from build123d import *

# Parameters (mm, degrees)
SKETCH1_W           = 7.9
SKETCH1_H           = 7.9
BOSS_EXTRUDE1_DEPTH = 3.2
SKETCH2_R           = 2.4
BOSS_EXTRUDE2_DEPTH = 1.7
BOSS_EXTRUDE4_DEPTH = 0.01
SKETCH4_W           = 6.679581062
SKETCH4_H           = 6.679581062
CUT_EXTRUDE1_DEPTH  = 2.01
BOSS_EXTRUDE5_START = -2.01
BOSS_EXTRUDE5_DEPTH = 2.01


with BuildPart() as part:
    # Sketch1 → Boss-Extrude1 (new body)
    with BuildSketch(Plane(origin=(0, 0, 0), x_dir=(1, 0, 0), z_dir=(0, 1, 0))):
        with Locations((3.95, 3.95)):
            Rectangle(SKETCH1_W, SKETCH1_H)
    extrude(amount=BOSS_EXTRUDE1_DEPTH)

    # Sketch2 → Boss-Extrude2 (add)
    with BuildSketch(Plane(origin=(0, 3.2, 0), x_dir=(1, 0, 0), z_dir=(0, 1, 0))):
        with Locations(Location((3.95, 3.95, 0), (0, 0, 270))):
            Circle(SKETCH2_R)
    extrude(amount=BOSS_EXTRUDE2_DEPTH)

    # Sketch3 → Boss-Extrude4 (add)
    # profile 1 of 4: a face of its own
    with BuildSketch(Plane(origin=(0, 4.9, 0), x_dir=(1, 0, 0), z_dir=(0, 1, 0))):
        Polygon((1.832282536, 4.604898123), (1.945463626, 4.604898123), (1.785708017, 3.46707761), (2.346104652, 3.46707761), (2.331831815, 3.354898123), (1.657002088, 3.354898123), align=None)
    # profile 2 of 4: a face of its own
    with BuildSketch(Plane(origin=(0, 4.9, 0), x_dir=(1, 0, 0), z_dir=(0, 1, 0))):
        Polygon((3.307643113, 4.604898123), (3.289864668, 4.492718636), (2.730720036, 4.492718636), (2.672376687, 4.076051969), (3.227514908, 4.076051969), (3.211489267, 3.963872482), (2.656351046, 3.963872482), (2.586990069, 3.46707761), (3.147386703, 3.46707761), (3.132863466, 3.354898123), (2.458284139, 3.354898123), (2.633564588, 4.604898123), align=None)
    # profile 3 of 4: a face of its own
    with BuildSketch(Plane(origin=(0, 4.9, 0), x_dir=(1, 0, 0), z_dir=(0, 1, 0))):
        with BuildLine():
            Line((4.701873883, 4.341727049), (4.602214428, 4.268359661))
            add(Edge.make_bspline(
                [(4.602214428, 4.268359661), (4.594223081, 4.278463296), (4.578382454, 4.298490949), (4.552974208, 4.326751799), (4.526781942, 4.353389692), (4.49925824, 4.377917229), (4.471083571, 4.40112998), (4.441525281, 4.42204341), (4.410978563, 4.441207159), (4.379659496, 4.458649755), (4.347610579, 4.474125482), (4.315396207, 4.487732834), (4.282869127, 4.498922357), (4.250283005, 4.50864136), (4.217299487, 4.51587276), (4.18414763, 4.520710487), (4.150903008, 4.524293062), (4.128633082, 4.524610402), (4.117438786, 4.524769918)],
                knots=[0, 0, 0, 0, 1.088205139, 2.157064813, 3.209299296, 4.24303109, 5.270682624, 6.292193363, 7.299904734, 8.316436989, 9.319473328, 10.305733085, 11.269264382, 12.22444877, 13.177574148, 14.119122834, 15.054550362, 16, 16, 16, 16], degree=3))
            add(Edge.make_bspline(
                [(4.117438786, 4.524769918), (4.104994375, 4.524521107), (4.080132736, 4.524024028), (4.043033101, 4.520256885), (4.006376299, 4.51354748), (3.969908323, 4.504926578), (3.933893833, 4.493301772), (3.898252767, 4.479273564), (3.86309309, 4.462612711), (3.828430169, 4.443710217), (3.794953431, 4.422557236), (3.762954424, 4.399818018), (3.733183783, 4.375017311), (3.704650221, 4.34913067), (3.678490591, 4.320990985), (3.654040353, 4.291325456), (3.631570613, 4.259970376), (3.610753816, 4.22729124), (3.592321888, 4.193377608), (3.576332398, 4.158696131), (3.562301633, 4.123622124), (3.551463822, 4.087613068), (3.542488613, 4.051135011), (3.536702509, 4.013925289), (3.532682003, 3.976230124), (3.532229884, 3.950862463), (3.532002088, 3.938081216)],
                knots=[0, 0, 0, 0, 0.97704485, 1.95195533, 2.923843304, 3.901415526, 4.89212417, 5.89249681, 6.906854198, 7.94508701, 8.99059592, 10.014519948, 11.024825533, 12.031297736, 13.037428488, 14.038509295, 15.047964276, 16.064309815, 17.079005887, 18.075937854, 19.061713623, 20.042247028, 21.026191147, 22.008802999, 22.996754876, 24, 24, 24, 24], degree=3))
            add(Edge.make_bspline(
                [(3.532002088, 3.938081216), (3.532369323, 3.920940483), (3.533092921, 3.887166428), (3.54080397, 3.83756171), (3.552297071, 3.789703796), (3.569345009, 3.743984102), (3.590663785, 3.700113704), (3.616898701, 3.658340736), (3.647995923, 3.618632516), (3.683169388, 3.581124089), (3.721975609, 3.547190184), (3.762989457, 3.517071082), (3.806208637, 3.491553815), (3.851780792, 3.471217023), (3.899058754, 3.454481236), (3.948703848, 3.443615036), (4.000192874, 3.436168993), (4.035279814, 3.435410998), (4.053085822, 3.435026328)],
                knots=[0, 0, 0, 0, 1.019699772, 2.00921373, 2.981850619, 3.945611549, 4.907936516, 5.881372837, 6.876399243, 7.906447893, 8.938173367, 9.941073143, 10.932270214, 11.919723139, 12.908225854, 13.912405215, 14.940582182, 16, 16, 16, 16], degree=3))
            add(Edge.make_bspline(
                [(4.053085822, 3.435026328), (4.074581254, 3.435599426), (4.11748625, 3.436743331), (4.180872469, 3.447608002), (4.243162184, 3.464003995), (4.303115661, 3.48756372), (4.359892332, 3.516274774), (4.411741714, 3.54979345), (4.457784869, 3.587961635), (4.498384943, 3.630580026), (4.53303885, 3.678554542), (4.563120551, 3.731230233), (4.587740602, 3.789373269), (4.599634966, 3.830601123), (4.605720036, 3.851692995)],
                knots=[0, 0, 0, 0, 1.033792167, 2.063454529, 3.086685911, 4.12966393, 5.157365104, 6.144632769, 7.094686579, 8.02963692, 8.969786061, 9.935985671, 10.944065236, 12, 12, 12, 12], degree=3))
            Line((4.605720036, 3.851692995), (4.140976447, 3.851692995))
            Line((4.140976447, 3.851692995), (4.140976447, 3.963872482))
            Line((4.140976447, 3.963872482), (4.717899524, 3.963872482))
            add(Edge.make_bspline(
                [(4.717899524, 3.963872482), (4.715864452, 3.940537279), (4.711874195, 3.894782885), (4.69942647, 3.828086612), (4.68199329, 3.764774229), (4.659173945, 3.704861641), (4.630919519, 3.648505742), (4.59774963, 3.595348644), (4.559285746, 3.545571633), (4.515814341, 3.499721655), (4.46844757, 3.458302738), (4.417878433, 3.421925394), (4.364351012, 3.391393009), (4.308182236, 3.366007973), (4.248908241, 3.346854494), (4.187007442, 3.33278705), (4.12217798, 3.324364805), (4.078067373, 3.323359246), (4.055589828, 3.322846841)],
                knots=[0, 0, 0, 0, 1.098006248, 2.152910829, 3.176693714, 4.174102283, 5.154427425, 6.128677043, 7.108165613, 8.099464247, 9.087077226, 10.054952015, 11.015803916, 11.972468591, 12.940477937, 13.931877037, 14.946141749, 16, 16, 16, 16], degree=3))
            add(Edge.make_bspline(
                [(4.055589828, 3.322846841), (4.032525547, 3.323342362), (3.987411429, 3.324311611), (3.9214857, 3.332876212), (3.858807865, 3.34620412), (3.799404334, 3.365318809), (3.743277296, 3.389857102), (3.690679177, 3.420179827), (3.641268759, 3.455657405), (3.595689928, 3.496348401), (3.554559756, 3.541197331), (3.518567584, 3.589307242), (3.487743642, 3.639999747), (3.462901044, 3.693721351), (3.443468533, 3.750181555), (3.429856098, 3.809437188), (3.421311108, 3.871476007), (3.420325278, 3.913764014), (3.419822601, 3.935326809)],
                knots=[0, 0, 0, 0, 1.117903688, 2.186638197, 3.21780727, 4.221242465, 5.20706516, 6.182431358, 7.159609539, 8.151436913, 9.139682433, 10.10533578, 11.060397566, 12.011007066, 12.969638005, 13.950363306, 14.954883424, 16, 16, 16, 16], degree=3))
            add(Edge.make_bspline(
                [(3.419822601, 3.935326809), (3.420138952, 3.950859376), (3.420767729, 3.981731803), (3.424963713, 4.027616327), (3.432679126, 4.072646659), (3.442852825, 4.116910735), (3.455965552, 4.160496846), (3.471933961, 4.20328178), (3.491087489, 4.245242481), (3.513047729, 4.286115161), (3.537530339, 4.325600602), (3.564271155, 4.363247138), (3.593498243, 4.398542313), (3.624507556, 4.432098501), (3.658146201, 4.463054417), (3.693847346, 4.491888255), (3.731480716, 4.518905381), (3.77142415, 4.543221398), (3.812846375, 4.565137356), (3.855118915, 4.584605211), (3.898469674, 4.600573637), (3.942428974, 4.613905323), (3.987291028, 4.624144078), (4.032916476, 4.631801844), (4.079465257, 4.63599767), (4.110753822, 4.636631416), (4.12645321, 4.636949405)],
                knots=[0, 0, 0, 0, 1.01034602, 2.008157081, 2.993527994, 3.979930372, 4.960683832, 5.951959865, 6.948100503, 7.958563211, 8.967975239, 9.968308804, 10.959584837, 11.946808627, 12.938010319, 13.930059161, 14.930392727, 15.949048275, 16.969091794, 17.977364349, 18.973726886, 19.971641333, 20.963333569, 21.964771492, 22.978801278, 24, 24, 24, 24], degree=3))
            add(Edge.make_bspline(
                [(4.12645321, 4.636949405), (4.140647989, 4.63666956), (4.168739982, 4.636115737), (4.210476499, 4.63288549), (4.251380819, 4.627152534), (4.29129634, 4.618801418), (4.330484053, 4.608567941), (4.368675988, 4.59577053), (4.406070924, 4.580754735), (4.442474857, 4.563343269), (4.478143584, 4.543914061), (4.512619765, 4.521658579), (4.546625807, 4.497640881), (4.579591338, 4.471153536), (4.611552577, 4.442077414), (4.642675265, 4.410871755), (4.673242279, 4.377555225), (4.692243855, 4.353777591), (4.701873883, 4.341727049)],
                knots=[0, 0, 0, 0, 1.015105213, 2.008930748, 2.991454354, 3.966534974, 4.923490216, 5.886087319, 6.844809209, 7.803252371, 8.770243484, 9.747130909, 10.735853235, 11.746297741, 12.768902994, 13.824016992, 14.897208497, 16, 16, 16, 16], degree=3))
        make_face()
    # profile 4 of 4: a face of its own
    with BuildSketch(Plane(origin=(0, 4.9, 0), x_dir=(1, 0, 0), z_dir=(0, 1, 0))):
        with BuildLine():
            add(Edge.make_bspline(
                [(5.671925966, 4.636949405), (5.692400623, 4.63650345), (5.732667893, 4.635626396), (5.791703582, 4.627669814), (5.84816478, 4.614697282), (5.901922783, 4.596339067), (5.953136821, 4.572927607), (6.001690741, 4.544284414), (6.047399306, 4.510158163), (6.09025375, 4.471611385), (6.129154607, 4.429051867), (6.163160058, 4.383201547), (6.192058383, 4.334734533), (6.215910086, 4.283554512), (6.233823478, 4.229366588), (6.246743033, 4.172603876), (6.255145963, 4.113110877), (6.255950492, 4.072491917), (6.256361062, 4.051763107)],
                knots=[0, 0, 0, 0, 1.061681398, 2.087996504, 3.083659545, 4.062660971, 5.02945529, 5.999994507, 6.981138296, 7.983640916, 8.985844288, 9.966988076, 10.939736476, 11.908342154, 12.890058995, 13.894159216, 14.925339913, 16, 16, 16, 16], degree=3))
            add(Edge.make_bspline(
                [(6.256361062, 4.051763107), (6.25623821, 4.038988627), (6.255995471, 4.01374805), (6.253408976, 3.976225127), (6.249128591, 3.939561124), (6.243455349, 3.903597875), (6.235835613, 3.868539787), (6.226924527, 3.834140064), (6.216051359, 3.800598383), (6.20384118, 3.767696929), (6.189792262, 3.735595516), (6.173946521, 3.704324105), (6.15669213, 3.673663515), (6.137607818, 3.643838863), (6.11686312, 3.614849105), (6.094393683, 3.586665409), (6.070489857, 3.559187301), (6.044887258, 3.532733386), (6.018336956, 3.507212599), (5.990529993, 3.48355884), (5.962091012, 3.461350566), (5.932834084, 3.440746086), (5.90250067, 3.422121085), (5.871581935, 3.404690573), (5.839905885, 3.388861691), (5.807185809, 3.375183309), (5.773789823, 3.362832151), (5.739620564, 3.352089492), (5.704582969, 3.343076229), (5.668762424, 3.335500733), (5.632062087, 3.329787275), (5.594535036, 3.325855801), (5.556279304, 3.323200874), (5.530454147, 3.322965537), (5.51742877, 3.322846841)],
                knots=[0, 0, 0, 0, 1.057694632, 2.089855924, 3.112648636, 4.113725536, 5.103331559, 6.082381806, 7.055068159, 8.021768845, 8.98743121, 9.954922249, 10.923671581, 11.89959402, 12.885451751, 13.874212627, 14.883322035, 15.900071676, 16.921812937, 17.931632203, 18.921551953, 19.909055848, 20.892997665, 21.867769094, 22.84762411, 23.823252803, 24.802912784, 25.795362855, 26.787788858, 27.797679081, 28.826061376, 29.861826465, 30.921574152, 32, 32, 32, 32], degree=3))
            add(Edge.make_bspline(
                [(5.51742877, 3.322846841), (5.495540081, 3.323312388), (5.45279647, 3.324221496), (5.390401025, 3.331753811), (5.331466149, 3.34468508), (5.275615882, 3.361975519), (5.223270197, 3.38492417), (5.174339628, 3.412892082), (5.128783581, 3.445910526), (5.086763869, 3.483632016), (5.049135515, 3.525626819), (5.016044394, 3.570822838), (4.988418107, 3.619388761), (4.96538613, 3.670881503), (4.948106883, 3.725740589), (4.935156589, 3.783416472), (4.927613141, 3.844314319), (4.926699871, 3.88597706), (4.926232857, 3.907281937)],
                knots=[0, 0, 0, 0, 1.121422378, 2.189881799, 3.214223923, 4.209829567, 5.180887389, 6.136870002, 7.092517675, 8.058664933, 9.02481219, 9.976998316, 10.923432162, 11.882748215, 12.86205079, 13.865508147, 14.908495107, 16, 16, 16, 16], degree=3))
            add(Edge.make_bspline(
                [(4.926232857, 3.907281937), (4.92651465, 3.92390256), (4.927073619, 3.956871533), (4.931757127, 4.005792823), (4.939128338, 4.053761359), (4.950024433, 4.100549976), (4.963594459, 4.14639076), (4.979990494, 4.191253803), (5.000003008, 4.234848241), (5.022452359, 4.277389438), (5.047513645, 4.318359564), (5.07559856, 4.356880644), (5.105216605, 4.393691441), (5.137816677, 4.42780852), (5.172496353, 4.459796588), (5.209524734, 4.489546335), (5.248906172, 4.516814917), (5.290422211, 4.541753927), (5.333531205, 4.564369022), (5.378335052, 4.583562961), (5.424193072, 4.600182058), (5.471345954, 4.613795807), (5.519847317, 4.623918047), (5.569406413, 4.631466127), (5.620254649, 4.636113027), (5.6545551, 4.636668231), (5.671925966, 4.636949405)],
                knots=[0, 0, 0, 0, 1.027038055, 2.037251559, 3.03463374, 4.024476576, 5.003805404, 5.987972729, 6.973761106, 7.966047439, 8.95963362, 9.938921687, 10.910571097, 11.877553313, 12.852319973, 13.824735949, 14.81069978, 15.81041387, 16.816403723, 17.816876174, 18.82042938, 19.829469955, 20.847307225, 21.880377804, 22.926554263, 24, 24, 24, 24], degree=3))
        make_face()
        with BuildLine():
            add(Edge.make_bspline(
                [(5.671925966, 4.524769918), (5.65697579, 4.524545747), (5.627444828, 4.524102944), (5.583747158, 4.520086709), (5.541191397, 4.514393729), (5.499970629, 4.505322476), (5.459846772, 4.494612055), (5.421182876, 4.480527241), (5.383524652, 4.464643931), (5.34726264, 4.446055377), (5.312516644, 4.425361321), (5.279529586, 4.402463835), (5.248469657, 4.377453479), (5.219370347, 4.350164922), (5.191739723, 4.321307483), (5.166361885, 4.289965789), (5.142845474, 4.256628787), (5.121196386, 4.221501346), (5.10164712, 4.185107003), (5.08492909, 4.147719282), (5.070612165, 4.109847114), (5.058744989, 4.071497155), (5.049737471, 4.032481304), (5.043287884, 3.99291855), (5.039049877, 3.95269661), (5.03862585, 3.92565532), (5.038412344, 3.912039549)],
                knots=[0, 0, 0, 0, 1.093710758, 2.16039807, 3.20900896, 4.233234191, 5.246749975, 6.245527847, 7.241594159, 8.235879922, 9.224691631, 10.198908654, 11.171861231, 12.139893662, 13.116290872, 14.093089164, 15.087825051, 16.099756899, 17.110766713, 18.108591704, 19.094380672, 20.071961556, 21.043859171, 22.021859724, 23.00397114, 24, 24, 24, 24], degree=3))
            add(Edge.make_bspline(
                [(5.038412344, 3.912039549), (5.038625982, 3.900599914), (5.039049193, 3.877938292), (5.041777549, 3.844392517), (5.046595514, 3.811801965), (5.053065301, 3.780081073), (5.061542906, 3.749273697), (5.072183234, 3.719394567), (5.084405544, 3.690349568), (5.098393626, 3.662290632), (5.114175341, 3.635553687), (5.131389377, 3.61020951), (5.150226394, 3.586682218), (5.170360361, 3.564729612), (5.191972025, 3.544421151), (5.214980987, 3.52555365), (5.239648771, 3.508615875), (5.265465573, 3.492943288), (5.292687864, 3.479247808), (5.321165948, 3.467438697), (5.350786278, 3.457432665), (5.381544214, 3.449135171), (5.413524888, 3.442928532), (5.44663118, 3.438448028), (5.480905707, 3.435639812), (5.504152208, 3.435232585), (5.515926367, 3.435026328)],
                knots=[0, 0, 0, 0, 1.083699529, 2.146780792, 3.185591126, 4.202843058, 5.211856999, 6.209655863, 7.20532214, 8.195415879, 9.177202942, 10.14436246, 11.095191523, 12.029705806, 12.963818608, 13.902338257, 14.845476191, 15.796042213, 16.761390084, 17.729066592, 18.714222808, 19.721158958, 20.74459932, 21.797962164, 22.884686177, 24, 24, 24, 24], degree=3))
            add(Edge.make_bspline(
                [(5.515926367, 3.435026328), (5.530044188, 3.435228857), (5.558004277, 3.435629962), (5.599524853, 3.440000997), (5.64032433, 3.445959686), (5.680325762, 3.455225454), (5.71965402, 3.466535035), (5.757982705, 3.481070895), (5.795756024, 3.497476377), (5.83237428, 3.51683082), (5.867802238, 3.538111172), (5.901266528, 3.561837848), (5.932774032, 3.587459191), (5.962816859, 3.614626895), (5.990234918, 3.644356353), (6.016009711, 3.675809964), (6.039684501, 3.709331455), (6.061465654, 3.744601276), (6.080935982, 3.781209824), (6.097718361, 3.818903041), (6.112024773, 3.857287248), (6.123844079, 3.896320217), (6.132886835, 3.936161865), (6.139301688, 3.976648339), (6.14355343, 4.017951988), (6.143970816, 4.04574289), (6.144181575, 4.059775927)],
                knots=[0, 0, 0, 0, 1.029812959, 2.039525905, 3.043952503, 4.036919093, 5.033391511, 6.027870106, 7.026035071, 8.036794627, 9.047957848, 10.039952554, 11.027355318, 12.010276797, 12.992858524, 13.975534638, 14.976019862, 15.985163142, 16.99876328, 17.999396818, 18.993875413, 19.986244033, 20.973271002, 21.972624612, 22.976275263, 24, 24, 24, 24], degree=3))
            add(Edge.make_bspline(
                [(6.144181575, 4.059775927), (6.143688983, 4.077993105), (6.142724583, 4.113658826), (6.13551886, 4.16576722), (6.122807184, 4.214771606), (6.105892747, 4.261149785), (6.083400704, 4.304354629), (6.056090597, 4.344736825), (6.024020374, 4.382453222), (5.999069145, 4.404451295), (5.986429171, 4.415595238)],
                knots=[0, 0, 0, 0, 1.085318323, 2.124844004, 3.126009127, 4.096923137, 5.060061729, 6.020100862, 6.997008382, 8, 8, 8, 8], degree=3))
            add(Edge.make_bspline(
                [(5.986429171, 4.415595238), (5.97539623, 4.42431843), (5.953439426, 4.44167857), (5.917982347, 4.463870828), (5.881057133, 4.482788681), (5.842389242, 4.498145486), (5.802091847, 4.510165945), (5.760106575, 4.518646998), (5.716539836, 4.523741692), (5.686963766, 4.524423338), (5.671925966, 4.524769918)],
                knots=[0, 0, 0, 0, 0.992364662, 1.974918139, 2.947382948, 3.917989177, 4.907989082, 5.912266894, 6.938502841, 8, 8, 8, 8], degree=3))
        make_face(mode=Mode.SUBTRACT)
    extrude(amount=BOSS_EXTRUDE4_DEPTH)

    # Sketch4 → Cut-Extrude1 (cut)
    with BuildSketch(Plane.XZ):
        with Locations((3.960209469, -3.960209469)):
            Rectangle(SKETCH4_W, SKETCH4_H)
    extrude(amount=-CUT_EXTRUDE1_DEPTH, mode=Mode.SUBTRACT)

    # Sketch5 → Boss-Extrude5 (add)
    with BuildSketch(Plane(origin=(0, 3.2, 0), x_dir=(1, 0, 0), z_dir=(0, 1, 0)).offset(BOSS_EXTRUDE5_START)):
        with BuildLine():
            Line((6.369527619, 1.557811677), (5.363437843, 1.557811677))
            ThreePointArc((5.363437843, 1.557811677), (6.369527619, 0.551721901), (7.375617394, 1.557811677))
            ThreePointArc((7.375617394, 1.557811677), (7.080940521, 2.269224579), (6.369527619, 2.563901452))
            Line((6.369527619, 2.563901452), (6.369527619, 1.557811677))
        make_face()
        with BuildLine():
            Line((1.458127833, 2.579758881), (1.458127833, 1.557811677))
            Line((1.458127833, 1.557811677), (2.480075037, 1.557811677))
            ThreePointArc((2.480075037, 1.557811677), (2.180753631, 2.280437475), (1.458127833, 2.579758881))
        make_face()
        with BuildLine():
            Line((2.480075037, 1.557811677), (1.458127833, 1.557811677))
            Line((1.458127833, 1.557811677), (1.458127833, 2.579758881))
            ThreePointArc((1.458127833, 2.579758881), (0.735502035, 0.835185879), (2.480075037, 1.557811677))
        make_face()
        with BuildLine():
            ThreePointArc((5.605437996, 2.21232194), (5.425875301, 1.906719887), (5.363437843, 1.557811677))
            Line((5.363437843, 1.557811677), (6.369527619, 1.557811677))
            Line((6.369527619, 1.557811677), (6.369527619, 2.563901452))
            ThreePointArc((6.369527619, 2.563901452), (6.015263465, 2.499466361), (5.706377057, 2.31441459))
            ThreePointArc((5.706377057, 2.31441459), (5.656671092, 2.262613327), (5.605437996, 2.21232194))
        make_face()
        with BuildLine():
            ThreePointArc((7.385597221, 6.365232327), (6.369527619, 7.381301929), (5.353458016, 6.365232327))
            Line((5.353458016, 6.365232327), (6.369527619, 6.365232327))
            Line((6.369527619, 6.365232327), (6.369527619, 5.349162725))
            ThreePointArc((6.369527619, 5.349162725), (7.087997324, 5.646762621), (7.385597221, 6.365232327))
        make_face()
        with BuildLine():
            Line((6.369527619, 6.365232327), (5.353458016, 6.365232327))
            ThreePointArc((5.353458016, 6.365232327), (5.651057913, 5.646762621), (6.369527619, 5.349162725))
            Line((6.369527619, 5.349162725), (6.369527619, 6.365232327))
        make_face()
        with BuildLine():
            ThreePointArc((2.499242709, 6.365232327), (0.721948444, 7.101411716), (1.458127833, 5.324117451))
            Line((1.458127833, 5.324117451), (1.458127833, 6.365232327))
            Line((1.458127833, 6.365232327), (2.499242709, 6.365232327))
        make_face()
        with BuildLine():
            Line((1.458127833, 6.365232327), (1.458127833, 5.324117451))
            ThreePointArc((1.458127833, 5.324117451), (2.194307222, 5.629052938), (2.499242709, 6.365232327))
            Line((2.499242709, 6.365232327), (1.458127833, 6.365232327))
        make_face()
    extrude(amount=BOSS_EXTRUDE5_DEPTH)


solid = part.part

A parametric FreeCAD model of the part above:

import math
import FreeCAD as App
import Part
import Sketcher
from FreeCAD import Vector
Q = App.Units.Quantity

doc = App.newDocument("Part")
params = doc.addObject("Spreadsheet::Sheet", "Params")
for row, (alias, value) in enumerate([
    ("sketch1_width", "7.9 mm"),
    ("pad1_length", "3.2 mm"),
    ("sketch2_diameter", "4.8 mm"),
    ("pad2_length", "1.7 mm"),
    ("pad3_length", "0.01 mm"),
    ("pocket1_length", "2.01 mm"),
    ("sketch5_radius", "2.399999 mm"),
    ("pad4_length", "2.01 mm"),
], start=1):
    params.set(f"A{row}", alias)
    params.set(f"B{row}", "=" + value)
    params.setAlias(f"B{row}", alias)

body = doc.addObject("PartDesign::Body", "Body")

# Sketch on XZ plane
sketch1 = body.newObject("Sketcher::SketchObject", "Sketch")
sketch1.AttachmentSupport = (doc.getObject("XZ_Plane"), [""])
sketch1.MapMode = "FlatFace"
sketch1.addGeometry([
    Part.LineSegment(Vector(0, -7.9, 0), Vector(0, 0, 0)),
    Part.LineSegment(Vector(0, 0, 0), Vector(7.9, 0, 0)),
    Part.LineSegment(Vector(7.9, 0, 0), Vector(7.9, -7.9, 0)),
    Part.LineSegment(Vector(7.9, -7.9, 0), Vector(0, -7.9, 0)),
], False)
sketch1.addConstraint([
    Sketcher.Constraint("Coincident", 0, 2, 1, 1),
    Sketcher.Constraint("Coincident", 1, 2, 2, 1),
    Sketcher.Constraint("Coincident", 2, 2, 3, 1),
    Sketcher.Constraint("Coincident", 3, 2, 0, 1),
    Sketcher.Constraint("Vertical", 0),
    Sketcher.Constraint("Horizontal", 1),
    Sketcher.Constraint("Vertical", 2),
    Sketcher.Constraint("Horizontal", 3),
    Sketcher.Constraint("Coincident", 0, 2, -1, 1),
    Sketcher.Constraint("Equal", 3, 0),
    Sketcher.Constraint("DistanceX", 1, 1, 1, 2, Q("7.9 mm")),
])
sketch1.setExpression("Constraints[10]", "Params.sketch1_width")
pad1 = body.newObject("PartDesign::Pad", "Pad")
pad1.Profile = sketch1
pad1.setExpression("Length", "Params.pad1_length")
pad1.Reversed = True

# Sketch on XZ plane
sketch2 = body.newObject("Sketcher::SketchObject", "Sketch001")
sketch2.AttachmentSupport = (doc.getObject("XZ_Plane"), [""])
sketch2.MapMode = "FlatFace"
sketch2.AttachmentOffset = App.Placement(Vector(0, 0, -3.2), App.Rotation())
sketch2.addGeometry(Part.Circle(Vector(3.95, -3.95, 0), Vector(0, 0, 1), 2.4), False)
sketch2.addConstraint([
    Sketcher.Constraint("Diameter", 0, Q("4.8 mm")),
    Sketcher.Constraint("DistanceX", -1, 1, 0, 3, Q("3.95 mm")),
    Sketcher.Constraint("DistanceY", 0, 3, -1, 1, Q("3.95 mm")),
])
sketch2.setExpression("Constraints[0]", "Params.sketch2_diameter")
pad2 = body.newObject("PartDesign::Pad", "Pad001")
pad2.Profile = sketch2
pad2.setExpression("Length", "Params.pad2_length")
pad2.Reversed = True

# Sketch on XZ plane
sketch3 = body.newObject("Sketcher::SketchObject", "Sketch002")
sketch3.AttachmentSupport = (doc.getObject("XZ_Plane"), [""])
sketch3.MapMode = "FlatFace"
sketch3.AttachmentOffset = App.Placement(Vector(0, 0, -4.9), App.Rotation())
sketch3.addGeometry([
    Part.LineSegment(Vector(1.945464, -4.604898, 0), Vector(1.832283, -4.604898, 0)),  # 0
    Part.LineSegment(Vector(1.832283, -4.604898, 0), Vector(1.657002, -3.354898, 0)),  # 1
    Part.LineSegment(Vector(1.657002, -3.354898, 0), Vector(2.331832, -3.354898, 0)),  # 2
    Part.LineSegment(Vector(2.331832, -3.354898, 0), Vector(2.346105, -3.467078, 0)),  # 3
    Part.LineSegment(Vector(2.346105, -3.467078, 0), Vector(1.785708, -3.467078, 0)),  # 4
    Part.LineSegment(Vector(1.785708, -3.467078, 0), Vector(1.945464, -4.604898, 0)),  # 5
    Part.LineSegment(Vector(3.289865, -4.492719, 0), Vector(3.307643, -4.604898, 0)),  # 6
    Part.LineSegment(Vector(3.307643, -4.604898, 0), Vector(2.633565, -4.604898, 0)),  # 7
    Part.LineSegment(Vector(2.633565, -4.604898, 0), Vector(2.458284, -3.354898, 0)),  # 8
    Part.LineSegment(Vector(2.458284, -3.354898, 0), Vector(3.132863, -3.354898, 0)),  # 9
    Part.LineSegment(Vector(3.132863, -3.354898, 0), Vector(3.147387, -3.467078, 0)),  # 10
    Part.LineSegment(Vector(3.147387, -3.467078, 0), Vector(2.58699, -3.467078, 0)),  # 11
    Part.LineSegment(Vector(2.58699, -3.467078, 0), Vector(2.656351, -3.963872, 0)),  # 12
    Part.LineSegment(Vector(2.656351, -3.963872, 0), Vector(3.211489, -3.963872, 0)),  # 13
    Part.LineSegment(Vector(3.211489, -3.963872, 0), Vector(3.227515, -4.076052, 0)),  # 14
    Part.LineSegment(Vector(3.227515, -4.076052, 0), Vector(2.672377, -4.076052, 0)),  # 15
    Part.LineSegment(Vector(2.672377, -4.076052, 0), Vector(2.73072, -4.492719, 0)),  # 16
    Part.LineSegment(Vector(2.73072, -4.492719, 0), Vector(3.289865, -4.492719, 0)),  # 17
    Part.LineSegment(Vector(4.602214, -4.26836, 0), Vector(4.701874, -4.341727, 0)),  # 18
    Part.BSplineCurve([Vector(4.126453, -4.636949, 0), Vector(4.140648, -4.63667, 0), Vector(4.16874, -4.636116, 0), Vector(4.210476, -4.632885, 0), Vector(4.251381, -4.627153, 0), Vector(4.291296, -4.618801, 0), Vector(4.330484, -4.608568, 0), Vector(4.368676, -4.595771, 0), Vector(4.406071, -4.580755, 0), Vector(4.442475, -4.563343, 0), Vector(4.478144, -4.543914, 0), Vector(4.51262, -4.521659, 0), Vector(4.546626, -4.497641, 0), Vector(4.579591, -4.471154, 0), Vector(4.611553, -4.442077, 0), Vector(4.642675, -4.410872, 0), Vector(4.673242, -4.377555, 0), Vector(4.692244, -4.353778, 0), Vector(4.701874, -4.341727, 0)], [4, 1, 1, 1, 1, 1, 1, 1, 1, 1, 1, 1, 1, 1, 1, 1, 4], [0, 1.015105213, 2.008930748, 2.991454354, 3.966534974, 4.923490216, 5.886087319, 6.844809209, 7.803252371, 8.770243484, 9.747130909, 10.735853235, 11.746297741, 12.768902994, 13.824016992, 14.897208497, 16], False, 3, [1, 1, 1, 1, 1, 1, 1, 1, 1, 1, 1, 1, 1, 1, 1, 1, 1, 1, 1], False),  # 19
    Part.BSplineCurve([Vector(3.419823, -3.935327, 0), Vector(3.420139, -3.950859, 0), Vector(3.420768, -3.981732, 0), Vector(3.424964, -4.027616, 0), Vector(3.432679, -4.072647, 0), Vector(3.442853, -4.116911, 0), Vector(3.455966, -4.160497, 0), Vector(3.471934, -4.203282, 0), Vector(3.491087, -4.245242, 0), Vector(3.513048, -4.286115, 0), Vector(3.53753, -4.325601, 0), Vector(3.564271, -4.363247, 0), Vector(3.593498, -4.398542, 0), Vector(3.624508, -4.432099, 0), Vector(3.658146, -4.463054, 0), Vector(3.693847, -4.491888, 0), Vector(3.731481, -4.518905, 0), Vector(3.771424, -4.543221, 0), Vector(3.812846, -4.565137, 0), Vector(3.855119, -4.584605, 0), Vector(3.89847, -4.600574, 0), Vector(3.942429, -4.613905, 0), Vector(3.987291, -4.624144, 0), Vector(4.032916, -4.631802, 0), Vector(4.079465, -4.635998, 0), Vector(4.110754, -4.636631, 0), Vector(4.126453, -4.636949, 0)], [4, 1, 1, 1, 1, 1, 1, 1, 1, 1, 1, 1, 1, 1, 1, 1, 1, 1, 1, 1, 1, 1, 1, 1, 4], [0, 1.01034602, 2.008157081, 2.993527994, 3.979930372, 4.960683832, 5.951959865, 6.948100503, 7.958563211, 8.967975239, 9.968308804, 10.959584837, 11.946808627, 12.938010319, 13.930059161, 14.930392727, 15.949048275, 16.969091794, 17.977364349, 18.973726886, 19.971641333, 20.963333569, 21.964771492, 22.978801278, 24], False, 3, [1, 1, 1, 1, 1, 1, 1, 1, 1, 1, 1, 1, 1, 1, 1, 1, 1, 1, 1, 1, 1, 1, 1, 1, 1, 1, 1], False),  # 20
    Part.BSplineCurve([Vector(4.05559, -3.322847, 0), Vector(4.032526, -3.323342, 0), Vector(3.987411, -3.324312, 0), Vector(3.921486, -3.332876, 0), Vector(3.858808, -3.346204, 0), Vector(3.799404, -3.365319, 0), Vector(3.743277, -3.389857, 0), Vector(3.690679, -3.42018, 0), Vector(3.641269, -3.455657, 0), Vector(3.59569, -3.496348, 0), Vector(3.55456, -3.541197, 0), Vector(3.518568, -3.589307, 0), Vector(3.487744, -3.64, 0), Vector(3.462901, -3.693721, 0), Vector(3.443469, -3.750182, 0), Vector(3.429856, -3.809437, 0), Vector(3.421311, -3.871476, 0), Vector(3.420325, -3.913764, 0), Vector(3.419823, -3.935327, 0)], [4, 1, 1, 1, 1, 1, 1, 1, 1, 1, 1, 1, 1, 1, 1, 1, 4], [0, 1.117903688, 2.186638197, 3.21780727, 4.221242465, 5.20706516, 6.182431358, 7.159609539, 8.151436913, 9.139682433, 10.10533578, 11.060397566, 12.011007066, 12.969638005, 13.950363306, 14.954883424, 16], False, 3, [1, 1, 1, 1, 1, 1, 1, 1, 1, 1, 1, 1, 1, 1, 1, 1, 1, 1, 1], False),  # 21
    Part.BSplineCurve([Vector(4.7179, -3.963872, 0), Vector(4.715864, -3.940537, 0), Vector(4.711874, -3.894783, 0), Vector(4.699426, -3.828087, 0), Vector(4.681993, -3.764774, 0), Vector(4.659174, -3.704862, 0), Vector(4.63092, -3.648506, 0), Vector(4.59775, -3.595349, 0), Vector(4.559286, -3.545572, 0), Vector(4.515814, -3.499722, 0), Vector(4.468448, -3.458303, 0), Vector(4.417878, -3.421925, 0), Vector(4.364351, -3.391393, 0), Vector(4.308182, -3.366008, 0), Vector(4.248908, -3.346854, 0), Vector(4.187007, -3.332787, 0), Vector(4.122178, -3.324365, 0), Vector(4.078067, -3.323359, 0), Vector(4.05559, -3.322847, 0)], [4, 1, 1, 1, 1, 1, 1, 1, 1, 1, 1, 1, 1, 1, 1, 1, 4], [0, 1.098006248, 2.152910829, 3.176693714, 4.174102283, 5.154427425, 6.128677043, 7.108165613, 8.099464247, 9.087077226, 10.054952015, 11.015803916, 11.972468591, 12.940477937, 13.931877037, 14.946141749, 16], False, 3, [1, 1, 1, 1, 1, 1, 1, 1, 1, 1, 1, 1, 1, 1, 1, 1, 1, 1, 1], False),  # 22
    Part.LineSegment(Vector(4.7179, -3.963872, 0), Vector(4.140976, -3.963872, 0)),  # 23
    Part.LineSegment(Vector(4.140976, -3.963872, 0), Vector(4.140976, -3.851693, 0)),  # 24
    Part.LineSegment(Vector(4.140976, -3.851693, 0), Vector(4.60572, -3.851693, 0)),  # 25
    Part.BSplineCurve([Vector(4.053086, -3.435026, 0), Vector(4.074581, -3.435599, 0), Vector(4.117486, -3.436743, 0), Vector(4.180872, -3.447608, 0), Vector(4.243162, -3.464004, 0), Vector(4.303116, -3.487564, 0), Vector(4.359892, -3.516275, 0), Vector(4.411742, -3.549793, 0), Vector(4.457785, -3.587962, 0), Vector(4.498385, -3.63058, 0), Vector(4.533039, -3.678555, 0), Vector(4.563121, -3.73123, 0), Vector(4.587741, -3.789373, 0), Vector(4.599635, -3.830601, 0), Vector(4.60572, -3.851693, 0)], [4, 1, 1, 1, 1, 1, 1, 1, 1, 1, 1, 1, 4], [0, 1.033792167, 2.063454529, 3.086685911, 4.12966393, 5.157365104, 6.144632769, 7.094686579, 8.02963692, 8.969786061, 9.935985671, 10.944065236, 12], False, 3, [1, 1, 1, 1, 1, 1, 1, 1, 1, 1, 1, 1, 1, 1, 1], False),  # 26
    Part.BSplineCurve([Vector(3.532002, -3.938081, 0), Vector(3.532369, -3.92094, 0), Vector(3.533093, -3.887166, 0), Vector(3.540804, -3.837562, 0), Vector(3.552297, -3.789704, 0), Vector(3.569345, -3.743984, 0), Vector(3.590664, -3.700114, 0), Vector(3.616899, -3.658341, 0), Vector(3.647996, -3.618633, 0), Vector(3.683169, -3.581124, 0), Vector(3.721976, -3.54719, 0), Vector(3.762989, -3.517071, 0), Vector(3.806209, -3.491554, 0), Vector(3.851781, -3.471217, 0), Vector(3.899059, -3.454481, 0), Vector(3.948704, -3.443615, 0), Vector(4.000193, -3.436169, 0), Vector(4.03528, -3.435411, 0), Vector(4.053086, -3.435026, 0)], [4, 1, 1, 1, 1, 1, 1, 1, 1, 1, 1, 1, 1, 1, 1, 1, 4], [0, 1.019699772, 2.00921373, 2.981850619, 3.945611549, 4.907936516, 5.881372837, 6.876399243, 7.906447893, 8.938173367, 9.941073143, 10.932270214, 11.919723139, 12.908225854, 13.912405215, 14.940582182, 16], False, 3, [1, 1, 1, 1, 1, 1, 1, 1, 1, 1, 1, 1, 1, 1, 1, 1, 1, 1, 1], False),  # 27
    Part.BSplineCurve([Vector(4.117439, -4.52477, 0), Vector(4.104994, -4.524521, 0), Vector(4.080133, -4.524024, 0), Vector(4.043033, -4.520257, 0), Vector(4.006376, -4.513547, 0), Vector(3.969908, -4.504927, 0), Vector(3.933894, -4.493302, 0), Vector(3.898253, -4.479274, 0), Vector(3.863093, -4.462613, 0), Vector(3.82843, -4.44371, 0), Vector(3.794953, -4.422557, 0), Vector(3.762954, -4.399818, 0), Vector(3.733184, -4.375017, 0), Vector(3.70465, -4.349131, 0), Vector(3.678491, -4.320991, 0), Vector(3.65404, -4.291325, 0), Vector(3.631571, -4.25997, 0), Vector(3.610754, -4.227291, 0), Vector(3.592322, -4.193378, 0), Vector(3.576332, -4.158696, 0), Vector(3.562302, -4.123622, 0), Vector(3.551464, -4.087613, 0), Vector(3.542489, -4.051135, 0), Vector(3.536703, -4.013925, 0), Vector(3.532682, -3.97623, 0), Vector(3.53223, -3.950862, 0), Vector(3.532002, -3.938081, 0)], [4, 1, 1, 1, 1, 1, 1, 1, 1, 1, 1, 1, 1, 1, 1, 1, 1, 1, 1, 1, 1, 1, 1, 1, 4], [0, 0.97704485, 1.95195533, 2.923843304, 3.901415526, 4.89212417, 5.89249681, 6.906854198, 7.94508701, 8.99059592, 10.014519948, 11.024825533, 12.031297736, 13.037428488, 14.038509295, 15.047964276, 16.064309815, 17.079005887, 18.075937854, 19.061713623, 20.042247028, 21.026191147, 22.008802999, 22.996754876, 24], False, 3, [1, 1, 1, 1, 1, 1, 1, 1, 1, 1, 1, 1, 1, 1, 1, 1, 1, 1, 1, 1, 1, 1, 1, 1, 1, 1, 1], False),  # 28
    Part.BSplineCurve([Vector(4.602214, -4.26836, 0), Vector(4.594223, -4.278463, 0), Vector(4.578382, -4.298491, 0), Vector(4.552974, -4.326752, 0), Vector(4.526782, -4.35339, 0), Vector(4.499258, -4.377917, 0), Vector(4.471084, -4.40113, 0), Vector(4.441525, -4.422043, 0), Vector(4.410979, -4.441207, 0), Vector(4.379659, -4.45865, 0), Vector(4.347611, -4.474125, 0), Vector(4.315396, -4.487733, 0), Vector(4.282869, -4.498922, 0), Vector(4.250283, -4.508641, 0), Vector(4.217299, -4.515873, 0), Vector(4.184148, -4.52071, 0), Vector(4.150903, -4.524293, 0), Vector(4.128633, -4.52461, 0), Vector(4.117439, -4.52477, 0)], [4, 1, 1, 1, 1, 1, 1, 1, 1, 1, 1, 1, 1, 1, 1, 1, 4], [0, 1.088205139, 2.157064813, 3.209299296, 4.24303109, 5.270682624, 6.292193363, 7.299904734, 8.316436989, 9.319473328, 10.305733085, 11.269264382, 12.22444877, 13.177574148, 14.119122834, 15.054550362, 16], False, 3, [1, 1, 1, 1, 1, 1, 1, 1, 1, 1, 1, 1, 1, 1, 1, 1, 1, 1, 1], False),  # 29
    Part.BSplineCurve([Vector(5.671926, -4.636949, 0), Vector(5.692401, -4.636503, 0), Vector(5.732668, -4.635626, 0), Vector(5.791704, -4.62767, 0), Vector(5.848165, -4.614697, 0), Vector(5.901923, -4.596339, 0), Vector(5.953137, -4.572928, 0), Vector(6.001691, -4.544284, 0), Vector(6.047399, -4.510158, 0), Vector(6.090254, -4.471611, 0), Vector(6.129155, -4.429052, 0), Vector(6.16316, -4.383202, 0), Vector(6.192058, -4.334735, 0), Vector(6.21591, -4.283555, 0), Vector(6.233823, -4.229367, 0), Vector(6.246743, -4.172604, 0), Vector(6.255146, -4.113111, 0), Vector(6.25595, -4.072492, 0), Vector(6.256361, -4.051763, 0)], [4, 1, 1, 1, 1, 1, 1, 1, 1, 1, 1, 1, 1, 1, 1, 1, 4], [0, 1.061681398, 2.087996504, 3.083659545, 4.062660971, 5.02945529, 5.999994507, 6.981138296, 7.983640916, 8.985844288, 9.966988076, 10.939736476, 11.908342154, 12.890058995, 13.894159216, 14.925339913, 16], False, 3, [1, 1, 1, 1, 1, 1, 1, 1, 1, 1, 1, 1, 1, 1, 1, 1, 1, 1, 1], False),  # 30
    Part.BSplineCurve([Vector(4.926233, -3.907282, 0), Vector(4.926515, -3.923903, 0), Vector(4.927074, -3.956872, 0), Vector(4.931757, -4.005793, 0), Vector(4.939128, -4.053761, 0), Vector(4.950024, -4.10055, 0), Vector(4.963594, -4.146391, 0), Vector(4.97999, -4.191254, 0), Vector(5.000003, -4.234848, 0), Vector(5.022452, -4.277389, 0), Vector(5.047514, -4.31836, 0), Vector(5.075599, -4.356881, 0), Vector(5.105217, -4.393691, 0), Vector(5.137817, -4.427809, 0), Vector(5.172496, -4.459797, 0), Vector(5.209525, -4.489546, 0), Vector(5.248906, -4.516815, 0), Vector(5.290422, -4.541754, 0), Vector(5.333531, -4.564369, 0), Vector(5.378335, -4.583563, 0), Vector(5.424193, -4.600182, 0), Vector(5.471346, -4.613796, 0), Vector(5.519847, -4.623918, 0), Vector(5.569406, -4.631466, 0), Vector(5.620255, -4.636113, 0), Vector(5.654555, -4.636668, 0), Vector(5.671926, -4.636949, 0)], [4, 1, 1, 1, 1, 1, 1, 1, 1, 1, 1, 1, 1, 1, 1, 1, 1, 1, 1, 1, 1, 1, 1, 1, 4], [0, 1.027038055, 2.037251559, 3.03463374, 4.024476576, 5.003805404, 5.987972729, 6.973761106, 7.966047439, 8.95963362, 9.938921687, 10.910571097, 11.877553313, 12.852319973, 13.824735949, 14.81069978, 15.81041387, 16.816403723, 17.816876174, 18.82042938, 19.829469955, 20.847307225, 21.880377804, 22.926554263, 24], False, 3, [1, 1, 1, 1, 1, 1, 1, 1, 1, 1, 1, 1, 1, 1, 1, 1, 1, 1, 1, 1, 1, 1, 1, 1, 1, 1, 1], False),  # 31
    Part.BSplineCurve([Vector(5.517429, -3.322847, 0), Vector(5.49554, -3.323312, 0), Vector(5.452796, -3.324221, 0), Vector(5.390401, -3.331754, 0), Vector(5.331466, -3.344685, 0), Vector(5.275616, -3.361976, 0), Vector(5.22327, -3.384924, 0), Vector(5.17434, -3.412892, 0), Vector(5.128784, -3.445911, 0), Vector(5.086764, -3.483632, 0), Vector(5.049136, -3.525627, 0), Vector(5.016044, -3.570823, 0), Vector(4.988418, -3.619389, 0), Vector(4.965386, -3.670882, 0), Vector(4.948107, -3.725741, 0), Vector(4.935157, -3.783416, 0), Vector(4.927613, -3.844314, 0), Vector(4.9267, -3.885977, 0), Vector(4.926233, -3.907282, 0)], [4, 1, 1, 1, 1, 1, 1, 1, 1, 1, 1, 1, 1, 1, 1, 1, 4], [0, 1.121422378, 2.189881799, 3.214223923, 4.209829567, 5.180887389, 6.136870002, 7.092517675, 8.058664933, 9.02481219, 9.976998316, 10.923432162, 11.882748215, 12.86205079, 13.865508147, 14.908495107, 16], False, 3, [1, 1, 1, 1, 1, 1, 1, 1, 1, 1, 1, 1, 1, 1, 1, 1, 1, 1, 1], False),  # 32
    Part.BSplineCurve([Vector(6.256361, -4.051763, 0), Vector(6.256238, -4.038989, 0), Vector(6.255995, -4.013748, 0), Vector(6.253409, -3.976225, 0), Vector(6.249129, -3.939561, 0), Vector(6.243455, -3.903598, 0), Vector(6.235836, -3.86854, 0), Vector(6.226925, -3.83414, 0), Vector(6.216051, -3.800598, 0), Vector(6.203841, -3.767697, 0), Vector(6.189792, -3.735596, 0), Vector(6.173947, -3.704324, 0), Vector(6.156692, -3.673664, 0), Vector(6.137608, -3.643839, 0), Vector(6.116863, -3.614849, 0), Vector(6.094394, -3.586665, 0), Vector(6.07049, -3.559187, 0), Vector(6.044887, -3.532733, 0), Vector(6.018337, -3.507213, 0), Vector(5.99053, -3.483559, 0), Vector(5.962091, -3.461351, 0), Vector(5.932834, -3.440746, 0), Vector(5.902501, -3.422121, 0), Vector(5.871582, -3.404691, 0), Vector(5.839906, -3.388862, 0), Vector(5.807186, -3.375183, 0), Vector(5.77379, -3.362832, 0), Vector(5.739621, -3.352089, 0), Vector(5.704583, -3.343076, 0), Vector(5.668762, -3.335501, 0), Vector(5.632062, -3.329787, 0), Vector(5.594535, -3.325856, 0), Vector(5.556279, -3.323201, 0), Vector(5.530454, -3.322966, 0), Vector(5.517429, -3.322847, 0)], [4, 1, 1, 1, 1, 1, 1, 1, 1, 1, 1, 1, 1, 1, 1, 1, 1, 1, 1, 1, 1, 1, 1, 1, 1, 1, 1, 1, 1, 1, 1, 1, 4], [0, 1.057694632, 2.089855924, 3.112648636, 4.113725536, 5.103331559, 6.082381806, 7.055068159, 8.021768845, 8.98743121, 9.954922249, 10.923671581, 11.89959402, 12.885451751, 13.874212627, 14.883322035, 15.900071676, 16.921812937, 17.931632203, 18.921551953, 19.909055848, 20.892997665, 21.867769094, 22.84762411, 23.823252803, 24.802912784, 25.795362855, 26.787788858, 27.797679081, 28.826061376, 29.861826465, 30.921574152, 32], False, 3, [1, 1, 1, 1, 1, 1, 1, 1, 1, 1, 1, 1, 1, 1, 1, 1, 1, 1, 1, 1, 1, 1, 1, 1, 1, 1, 1, 1, 1, 1, 1, 1, 1, 1, 1], False),  # 33
    Part.BSplineCurve([Vector(5.986429, -4.415595, 0), Vector(5.975396, -4.424318, 0), Vector(5.953439, -4.441679, 0), Vector(5.917982, -4.463871, 0), Vector(5.881057, -4.482789, 0), Vector(5.842389, -4.498145, 0), Vector(5.802092, -4.510166, 0), Vector(5.760107, -4.518647, 0), Vector(5.71654, -4.523742, 0), Vector(5.686964, -4.524423, 0), Vector(5.671926, -4.52477, 0)], [4, 1, 1, 1, 1, 1, 1, 1, 4], [0, 0.992364662, 1.974918139, 2.947382948, 3.917989177, 4.907989082, 5.912266894, 6.938502841, 8], False, 3, [1, 1, 1, 1, 1, 1, 1, 1, 1, 1, 1], False),  # 34
    Part.BSplineCurve([Vector(6.144182, -4.059776, 0), Vector(6.143689, -4.077993, 0), Vector(6.142725, -4.113659, 0), Vector(6.135519, -4.165767, 0), Vector(6.122807, -4.214772, 0), Vector(6.105893, -4.26115, 0), Vector(6.083401, -4.304355, 0), Vector(6.056091, -4.344737, 0), Vector(6.02402, -4.382453, 0), Vector(5.999069, -4.404451, 0), Vector(5.986429, -4.415595, 0)], [4, 1, 1, 1, 1, 1, 1, 1, 4], [0, 1.085318323, 2.124844004, 3.126009127, 4.096923137, 5.060061729, 6.020100862, 6.997008382, 8], False, 3, [1, 1, 1, 1, 1, 1, 1, 1, 1, 1, 1], False),  # 35
    Part.BSplineCurve([Vector(5.515926, -3.435026, 0), Vector(5.530044, -3.435229, 0), Vector(5.558004, -3.43563, 0), Vector(5.599525, -3.440001, 0), Vector(5.640324, -3.44596, 0), Vector(5.680326, -3.455225, 0), Vector(5.719654, -3.466535, 0), Vector(5.757983, -3.481071, 0), Vector(5.795756, -3.497476, 0), Vector(5.832374, -3.516831, 0), Vector(5.867802, -3.538111, 0), Vector(5.901267, -3.561838, 0), Vector(5.932774, -3.587459, 0), Vector(5.962817, -3.614627, 0), Vector(5.990235, -3.644356, 0), Vector(6.01601, -3.67581, 0), Vector(6.039685, -3.709331, 0), Vector(6.061466, -3.744601, 0), Vector(6.080936, -3.78121, 0), Vector(6.097718, -3.818903, 0), Vector(6.112025, -3.857287, 0), Vector(6.123844, -3.89632, 0), Vector(6.132887, -3.936162, 0), Vector(6.139302, -3.976648, 0), Vector(6.143553, -4.017952, 0), Vector(6.143971, -4.045743, 0), Vector(6.144182, -4.059776, 0)], [4, 1, 1, 1, 1, 1, 1, 1, 1, 1, 1, 1, 1, 1, 1, 1, 1, 1, 1, 1, 1, 1, 1, 1, 4], [0, 1.029812959, 2.039525905, 3.043952503, 4.036919093, 5.033391511, 6.027870106, 7.026035071, 8.036794627, 9.047957848, 10.039952554, 11.027355318, 12.010276797, 12.992858524, 13.975534638, 14.976019862, 15.985163142, 16.99876328, 17.999396818, 18.993875413, 19.986244033, 20.973271002, 21.972624612, 22.976275263, 24], False, 3, [1, 1, 1, 1, 1, 1, 1, 1, 1, 1, 1, 1, 1, 1, 1, 1, 1, 1, 1, 1, 1, 1, 1, 1, 1, 1, 1], False),  # 36
    Part.BSplineCurve([Vector(5.038412, -3.91204, 0), Vector(5.038626, -3.9006, 0), Vector(5.039049, -3.877938, 0), Vector(5.041778, -3.844393, 0), Vector(5.046596, -3.811802, 0), Vector(5.053065, -3.780081, 0), Vector(5.061543, -3.749274, 0), Vector(5.072183, -3.719395, 0), Vector(5.084406, -3.69035, 0), Vector(5.098394, -3.662291, 0), Vector(5.114175, -3.635554, 0), Vector(5.131389, -3.61021, 0), Vector(5.150226, -3.586682, 0), Vector(5.17036, -3.56473, 0), Vector(5.191972, -3.544421, 0), Vector(5.214981, -3.525554, 0), Vector(5.239649, -3.508616, 0), Vector(5.265466, -3.492943, 0), Vector(5.292688, -3.479248, 0), Vector(5.321166, -3.467439, 0), Vector(5.350786, -3.457433, 0), Vector(5.381544, -3.449135, 0), Vector(5.413525, -3.442929, 0), Vector(5.446631, -3.438448, 0), Vector(5.480906, -3.43564, 0), Vector(5.504152, -3.435233, 0), Vector(5.515926, -3.435026, 0)], [4, 1, 1, 1, 1, 1, 1, 1, 1, 1, 1, 1, 1, 1, 1, 1, 1, 1, 1, 1, 1, 1, 1, 1, 4], [0, 1.083699529, 2.146780792, 3.185591126, 4.202843058, 5.211856999, 6.209655863, 7.20532214, 8.195415879, 9.177202942, 10.14436246, 11.095191523, 12.029705806, 12.963818608, 13.902338257, 14.845476191, 15.796042213, 16.761390084, 17.729066592, 18.714222808, 19.721158958, 20.74459932, 21.797962164, 22.884686177, 24], False, 3, [1, 1, 1, 1, 1, 1, 1, 1, 1, 1, 1, 1, 1, 1, 1, 1, 1, 1, 1, 1, 1, 1, 1, 1, 1, 1, 1], False),  # 37
    Part.BSplineCurve([Vector(5.671926, -4.52477, 0), Vector(5.656976, -4.524546, 0), Vector(5.627445, -4.524103, 0), Vector(5.583747, -4.520087, 0), Vector(5.541191, -4.514394, 0), Vector(5.499971, -4.505322, 0), Vector(5.459847, -4.494612, 0), Vector(5.421183, -4.480527, 0), Vector(5.383525, -4.464644, 0), Vector(5.347263, -4.446055, 0), Vector(5.312517, -4.425361, 0), Vector(5.27953, -4.402464, 0), Vector(5.24847, -4.377453, 0), Vector(5.21937, -4.350165, 0), Vector(5.19174, -4.321307, 0), Vector(5.166362, -4.289966, 0), Vector(5.142845, -4.256629, 0), Vector(5.121196, -4.221501, 0), Vector(5.101647, -4.185107, 0), Vector(5.084929, -4.147719, 0), Vector(5.070612, -4.109847, 0), Vector(5.058745, -4.071497, 0), Vector(5.049737, -4.032481, 0), Vector(5.043288, -3.992919, 0), Vector(5.03905, -3.952697, 0), Vector(5.038626, -3.925655, 0), Vector(5.038412, -3.91204, 0)], [4, 1, 1, 1, 1, 1, 1, 1, 1, 1, 1, 1, 1, 1, 1, 1, 1, 1, 1, 1, 1, 1, 1, 1, 4], [0, 1.093710758, 2.16039807, 3.20900896, 4.233234191, 5.246749975, 6.245527847, 7.241594159, 8.235879922, 9.224691631, 10.198908654, 11.171861231, 12.139893662, 13.116290872, 14.093089164, 15.087825051, 16.099756899, 17.110766713, 18.108591704, 19.094380672, 20.071961556, 21.043859171, 22.021859724, 23.00397114, 24], False, 3, [1, 1, 1, 1, 1, 1, 1, 1, 1, 1, 1, 1, 1, 1, 1, 1, 1, 1, 1, 1, 1, 1, 1, 1, 1, 1, 1], False),  # 38
], False)
sketch3.addConstraint([
    Sketcher.Constraint("Block", 19),
    Sketcher.Constraint("Block", 20),
    Sketcher.Constraint("Block", 21),
    Sketcher.Constraint("Block", 22),
    Sketcher.Constraint("Block", 26),
    Sketcher.Constraint("Block", 27),
    Sketcher.Constraint("Block", 28),
    Sketcher.Constraint("Block", 29),
    Sketcher.Constraint("Block", 30),
    Sketcher.Constraint("Block", 31),
    Sketcher.Constraint("Block", 32),
    Sketcher.Constraint("Block", 33),
    Sketcher.Constraint("Block", 34),
    Sketcher.Constraint("Block", 35),
    Sketcher.Constraint("Block", 36),
    Sketcher.Constraint("Block", 37),
    Sketcher.Constraint("Block", 38),
    Sketcher.Constraint("Coincident", 0, 2, 1, 1),
    Sketcher.Constraint("Coincident", 1, 2, 2, 1),
    Sketcher.Constraint("Coincident", 2, 2, 3, 1),
    Sketcher.Constraint("Coincident", 3, 2, 4, 1),
    Sketcher.Constraint("Coincident", 4, 2, 5, 1),
    Sketcher.Constraint("Coincident", 5, 2, 0, 1),
    Sketcher.Constraint("Coincident", 6, 2, 7, 1),
    Sketcher.Constraint("Coincident", 7, 2, 8, 1),
    Sketcher.Constraint("Coincident", 8, 2, 9, 1),
    Sketcher.Constraint("Coincident", 9, 2, 10, 1),
    Sketcher.Constraint("Coincident", 10, 2, 11, 1),
    Sketcher.Constraint("Coincident", 11, 2, 12, 1),
    Sketcher.Constraint("Coincident", 12, 2, 13, 1),
    Sketcher.Constraint("Coincident", 13, 2, 14, 1),
    Sketcher.Constraint("Coincident", 14, 2, 15, 1),
    Sketcher.Constraint("Coincident", 15, 2, 16, 1),
    Sketcher.Constraint("Coincident", 16, 2, 17, 1),
    Sketcher.Constraint("Coincident", 17, 2, 6, 1),
    Sketcher.Constraint("Coincident", 18, 2, 19, 2),
    Sketcher.Constraint("Coincident", 22, 1, 23, 1),
    Sketcher.Constraint("Coincident", 23, 2, 24, 1),
    Sketcher.Constraint("Coincident", 24, 2, 25, 1),
    Sketcher.Constraint("Coincident", 25, 2, 26, 2),
    Sketcher.Constraint("Coincident", 29, 1, 18, 1),
    Sketcher.Constraint("Horizontal", 0),
    Sketcher.Constraint("Horizontal", 2),
    Sketcher.Constraint("Horizontal", 4),
    Sketcher.Constraint("Horizontal", 7),
    Sketcher.Constraint("Horizontal", 9),
    Sketcher.Constraint("Horizontal", 11),
    Sketcher.Constraint("Horizontal", 13),
    Sketcher.Constraint("Horizontal", 15),
    Sketcher.Constraint("Horizontal", 17),
    Sketcher.Constraint("Horizontal", 23),
    Sketcher.Constraint("Vertical", 24),
    Sketcher.Constraint("Horizontal", 25),
    Sketcher.Constraint("DistanceY", 0, 2, 1, 2, Q("1.25 mm")),
    Sketcher.Constraint("DistanceY", 6, 2, 2, 2, Q("1.25 mm")),
    Sketcher.Constraint("DistanceY", 7, 2, 8, 2, Q("1.25 mm")),
    Sketcher.Constraint("DistanceX", 0, 2, 0, 1, Q("0.113181 mm")),
    Sketcher.Constraint("DistanceX", 2, 1, 2, 2, Q("0.67483 mm")),
    Sketcher.Constraint("DistanceX", 7, 2, 7, 1, Q("0.674079 mm")),
    Sketcher.Constraint("DistanceX", 9, 1, 9, 2, Q("0.674579 mm")),
    Sketcher.Constraint("DistanceX", 13, 1, 13, 2, Q("0.555138 mm")),
    Sketcher.Constraint("DistanceX", 15, 2, 15, 1, Q("0.555138 mm")),
    Sketcher.Constraint("DistanceY", 0, 2, -1, 1, Q("4.604898 mm")),
    Sketcher.Constraint("DistanceX", 5, 2, 7, 2, Q("0.688101 mm")),
    Sketcher.Constraint("DistanceX", 7, 2, 9, 2, Q("0.499299 mm")),
    Sketcher.Constraint("DistanceX", 11, 2, 13, 2, Q("0.624499 mm")),
    Sketcher.Constraint("DistanceX", 7, 2, 17, 2, Q("0.6563 mm")),
    Sketcher.Constraint("Distance", 1, Q("1.262229 mm")),
    Sketcher.Constraint("Distance", 5, Q("1.148981 mm")),
    Sketcher.Constraint("Distance", 6, Q("0.11358 mm")),
    Sketcher.Constraint("Distance", 14, Q("0.113318 mm")),
    Sketcher.Constraint("Distance", 16, Q("0.420732 mm")),
    Sketcher.Constraint("DistanceX", 4, 2, 4, 1, Q("0.560397 mm")),
    Sketcher.Constraint("DistanceX", 11, 2, 11, 1, Q("0.560397 mm")),
    Sketcher.Constraint("DistanceX", 17, 1, 17, 2, Q("0.559145 mm")),
    Sketcher.Constraint("DistanceX", 23, 2, 23, 1, Q("0.576923 mm")),
    Sketcher.Constraint("DistanceX", -1, 1, 2, 2, Q("2.331832 mm")),
    Sketcher.Constraint("DistanceX", -1, 1, 4, 2, Q("1.785708 mm")),
    Sketcher.Constraint("DistanceX", -1, 1, 11, 2, Q("2.58699 mm")),
    Sketcher.Constraint("DistanceY", 14, 2, -1, 1, Q("4.076052 mm")),
    Sketcher.Constraint("DistanceY", 10, 2, 9, 2, Q("0.112179 mm")),
])
pad3 = body.newObject("PartDesign::Pad", "Pad002")
pad3.Profile = sketch3
pad3.setExpression("Length", "Params.pad3_length")
pad3.Reversed = True

# Sketch on XZ plane
sketch4 = body.newObject("Sketcher::SketchObject", "Sketch003")
sketch4.AttachmentSupport = (doc.getObject("XZ_Plane"), [""])
sketch4.MapMode = "FlatFace"
sketch4.addGeometry([
    Part.LineSegment(Vector(0.620419, -0.620419, 0), Vector(0.620419, -7.3, 0)),
    Part.LineSegment(Vector(0.620419, -7.3, 0), Vector(7.3, -7.3, 0)),
    Part.LineSegment(Vector(7.3, -7.3, 0), Vector(7.3, -0.620419, 0)),
    Part.LineSegment(Vector(7.3, -0.620419, 0), Vector(0.620419, -0.620419, 0)),
], False)
sketch4.addConstraint([
    Sketcher.Constraint("Coincident", 0, 2, 1, 1),
    Sketcher.Constraint("Coincident", 1, 2, 2, 1),
    Sketcher.Constraint("Coincident", 2, 2, 3, 1),
    Sketcher.Constraint("Coincident", 3, 2, 0, 1),
    Sketcher.Constraint("Vertical", 0),
    Sketcher.Constraint("Horizontal", 1),
    Sketcher.Constraint("Vertical", 2),
    Sketcher.Constraint("Horizontal", 3),
    Sketcher.Constraint("Equal", 3, 0),
    Sketcher.Constraint("DistanceY", 0, 2, -1, 1, Q("7.3 mm")),
    Sketcher.Constraint("DistanceX", -1, 1, 1, 2, Q("7.3 mm")),
    Sketcher.Constraint("DistanceX", 1, 1, 1, 2, Q("6.679581 mm")),
])
pocket1 = body.newObject("PartDesign::Pocket", "Pocket")
pocket1.Profile = sketch4
pocket1.setExpression("Length", "Params.pocket1_length")

# Sketch on XZ plane
sketch5 = body.newObject("Sketcher::SketchObject", "Sketch004")
sketch5.AttachmentSupport = (doc.getObject("XZ_Plane"), [""])
sketch5.MapMode = "FlatFace"
sketch5.AttachmentOffset = App.Placement(Vector(0, 0, -1.19), App.Rotation())
sketch5.addGeometry([
    Part.ArcOfCircle(Part.Circle(Vector(6.369528, -1.557812, 0), Vector(0, 0, 1), 1.00609), math.radians(0), math.radians(180)),  # 0
    Part.ArcOfCircle(Part.Circle(Vector(6.369528, -1.557812, 0), Vector(0, 0, 1), 1.00609), math.radians(-90), math.radians(0)),  # 1
    Part.ArcOfCircle(Part.Circle(Vector(6.369528, -1.557812, 0), Vector(0, 0, 1), 1.00609), math.radians(-131.234056), math.radians(-90)),  # 2
    Part.ArcOfCircle(Part.Circle(Vector(3.95, -3.95, 0), Vector(0, 0, 1), 2.399999), math.radians(42.960494), math.radians(46.388425)),  # 3
    Part.ArcOfCircle(Part.Circle(Vector(6.369528, -1.557812, 0), Vector(0, 0, 1), 1.00609), math.radians(-180), math.radians(-139.417026)),  # 4
    Part.ArcOfCircle(Part.Circle(Vector(1.458128, -1.557812, 0), Vector(0, 0, 1), 1.021947), math.radians(-90), math.radians(0)),  # 5
    Part.ArcOfCircle(Part.Circle(Vector(1.458128, -1.557812, 0), Vector(0, 0, 1), 1.021947), math.radians(0), math.radians(270)),  # 6
    Part.ArcOfCircle(Part.Circle(Vector(6.369528, -6.365232, 0), Vector(0, 0, 1), 1.01607), math.radians(180), math.radians(360)),  # 7
    Part.ArcOfCircle(Part.Circle(Vector(6.369528, -6.365232, 0), Vector(0, 0, 1), 1.01607), math.radians(90), math.radians(180)),  # 8
    Part.ArcOfCircle(Part.Circle(Vector(6.369528, -6.365232, 0), Vector(0, 0, 1), 1.01607), math.radians(0), math.radians(90)),  # 9
    Part.ArcOfCircle(Part.Circle(Vector(1.458128, -6.365232, 0), Vector(0, 0, 1), 1.041115), math.radians(90), math.radians(360)),  # 10
    Part.ArcOfCircle(Part.Circle(Vector(1.458128, -6.365232, 0), Vector(0, 0, 1), 1.041115), math.radians(0), math.radians(90)),  # 11
], False)
sketch5.addConstraint([
    Sketcher.Constraint("Tangent", 0, 1, 1, 2),
    Sketcher.Constraint("Tangent", 1, 1, 2, 2),
    Sketcher.Constraint("Coincident", 2, 1, 3, 1),
    Sketcher.Constraint("Coincident", 3, 2, 4, 2),
    Sketcher.Constraint("Tangent", 4, 1, 0, 2),
    Sketcher.Constraint("Tangent", 5, 1, 6, 2),
    Sketcher.Constraint("Coincident", 6, 1, 5, 2),
    Sketcher.Constraint("Tangent", 7, 1, 8, 2),
    Sketcher.Constraint("Tangent", 8, 1, 9, 2),
    Sketcher.Constraint("Tangent", 9, 1, 7, 2),
    Sketcher.Constraint("Tangent", 10, 1, 11, 2),
    Sketcher.Constraint("Coincident", 11, 1, 10, 2),
    Sketcher.Constraint("Coincident", 2, 3, 0, 3),
    Sketcher.Constraint("Equal", 2, 4),
    Sketcher.Constraint("Horizontal", 4, 3, 5, 3),
    Sketcher.Constraint("Horizontal", 9, 3, 10, 3),
    Sketcher.Constraint("Horizontal", 6, 3, 0, 1),
    Sketcher.Constraint("Horizontal", 0, 1, 4, 1),
    Sketcher.Constraint("Horizontal", 4, 1, 6, 1),
    Sketcher.Constraint("Horizontal", 11, 3, 7, 1),
    Sketcher.Constraint("Horizontal", 7, 1, 9, 1),
    Sketcher.Constraint("Horizontal", 9, 1, 11, 1),
    Sketcher.Constraint("Vertical", 4, 3, 7, 3),
    Sketcher.Constraint("Vertical", 6, 3, 10, 3),
    Sketcher.Constraint("Vertical", 9, 3, 1, 1),
    Sketcher.Constraint("Vertical", 11, 3, 5, 1),
    Sketcher.Constraint("Vertical", 1, 1, 8, 1),
    Sketcher.Constraint("Vertical", 5, 1, 10, 1),
    Sketcher.Constraint("Radius", 3, Q("2.399999 mm")),
    Sketcher.Constraint("DistanceX", -1, 1, 3, 3, Q("3.95 mm")),
    Sketcher.Constraint("DistanceY", 3, 3, -1, 1, Q("3.95 mm")),
    Sketcher.Constraint("Radius", 0, Q("1.00609 mm")),
    Sketcher.Constraint("Radius", 7, Q("1.01607 mm")),
    Sketcher.Constraint("Radius", 5, Q("1.021947 mm")),
    Sketcher.Constraint("Radius", 10, Q("1.041115 mm")),
    Sketcher.Constraint("DistanceX", 4, 1, 3, 2, Q("0.242 mm")),
    Sketcher.Constraint("DistanceY", 1, 1, -1, 1, Q("2.563901 mm")),
    Sketcher.Constraint("DistanceX", 5, 3, 0, 3, Q("4.9114 mm")),
    Sketcher.Constraint("DistanceY", 7, 3, 0, 3, Q("4.807421 mm")),
])
sketch5.setExpression("Constraints[28]", "Params.sketch5_radius")
pad4 = body.newObject("PartDesign::Pad", "Pad003")
pad4.Profile = sketch5
pad4.setExpression("Length", "Params.pad4_length")
pad4.Reversed = True

doc.recompute()
